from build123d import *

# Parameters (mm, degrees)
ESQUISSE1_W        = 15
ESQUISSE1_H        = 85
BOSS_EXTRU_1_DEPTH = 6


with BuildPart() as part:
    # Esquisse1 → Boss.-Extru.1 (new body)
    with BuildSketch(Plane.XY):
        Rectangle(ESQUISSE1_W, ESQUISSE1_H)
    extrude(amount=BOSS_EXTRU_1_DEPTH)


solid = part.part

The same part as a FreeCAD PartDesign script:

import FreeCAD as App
import Part
import Sketcher
from FreeCAD import Vector


def add_polygon(sketch, points):
    """Adds a closed chain of lines whose ends are joined by coincident constraints."""
    first, n = sketch.GeometryCount, len(points)
    for a, b in zip(points, points[1:] + points[:1]):
        sketch.addGeometry(Part.LineSegment(App.Vector(*a, 0), App.Vector(*b, 0)), False)
    for i in range(n):
        sketch.addConstraint(Sketcher.Constraint("Coincident", first + i, 2, first + (i + 1) % n, 1))

doc = App.newDocument("Part")
params = doc.addObject("Spreadsheet::Sheet", "Params")
for row, (alias, value) in enumerate([
    ("sketch1_width", "15 mm"),
    ("sketch1_height", "85 mm"),
    ("pad1_length", "6 mm"),
], start=1):
    params.set(f"A{row}", alias)
    params.set(f"B{row}", "=" + value)
    params.setAlias(f"B{row}", alias)

body = doc.addObject("PartDesign::Body", "Body")

# Sketch on XY plane
sketch1 = body.newObject("Sketcher::SketchObject", "Sketch")
sketch1.AttachmentSupport = (doc.getObject("XY_Plane"), [""])
sketch1.MapMode = "FlatFace"
add_polygon(sketch1, [(-8, 42), (-8, -42), (8, -42), (8, 42)])  # lines 0-3
sketch1.addConstraint(Sketcher.Constraint("Vertical", 0))
sketch1.addConstraint(Sketcher.Constraint("Horizontal", 1))
sketch1.addConstraint(Sketcher.Constraint("Vertical", 2))
sketch1.addConstraint(Sketcher.Constraint("Horizontal", 3))
sketch1.addConstraint(Sketcher.Constraint("Symmetric", 0, 2, 2, 2, -1, 1))
sketch1.addConstraint(Sketcher.Constraint("DistanceX", 1, 1, 1, 2, 15.0))
sketch1.addConstraint(Sketcher.Constraint("DistanceY", 0, 2, 0, 1, 85.0))
sketch1.setExpression("Constraints[9]", "Params.sketch1_width")
sketch1.setExpression("Constraints[10]", "Params.sketch1_height")
pad1 = body.newObject("PartDesign::Pad", "Pad")
pad1.Profile = sketch1
pad1.setExpression("Length", "Params.pad1_length")

doc.recompute()
